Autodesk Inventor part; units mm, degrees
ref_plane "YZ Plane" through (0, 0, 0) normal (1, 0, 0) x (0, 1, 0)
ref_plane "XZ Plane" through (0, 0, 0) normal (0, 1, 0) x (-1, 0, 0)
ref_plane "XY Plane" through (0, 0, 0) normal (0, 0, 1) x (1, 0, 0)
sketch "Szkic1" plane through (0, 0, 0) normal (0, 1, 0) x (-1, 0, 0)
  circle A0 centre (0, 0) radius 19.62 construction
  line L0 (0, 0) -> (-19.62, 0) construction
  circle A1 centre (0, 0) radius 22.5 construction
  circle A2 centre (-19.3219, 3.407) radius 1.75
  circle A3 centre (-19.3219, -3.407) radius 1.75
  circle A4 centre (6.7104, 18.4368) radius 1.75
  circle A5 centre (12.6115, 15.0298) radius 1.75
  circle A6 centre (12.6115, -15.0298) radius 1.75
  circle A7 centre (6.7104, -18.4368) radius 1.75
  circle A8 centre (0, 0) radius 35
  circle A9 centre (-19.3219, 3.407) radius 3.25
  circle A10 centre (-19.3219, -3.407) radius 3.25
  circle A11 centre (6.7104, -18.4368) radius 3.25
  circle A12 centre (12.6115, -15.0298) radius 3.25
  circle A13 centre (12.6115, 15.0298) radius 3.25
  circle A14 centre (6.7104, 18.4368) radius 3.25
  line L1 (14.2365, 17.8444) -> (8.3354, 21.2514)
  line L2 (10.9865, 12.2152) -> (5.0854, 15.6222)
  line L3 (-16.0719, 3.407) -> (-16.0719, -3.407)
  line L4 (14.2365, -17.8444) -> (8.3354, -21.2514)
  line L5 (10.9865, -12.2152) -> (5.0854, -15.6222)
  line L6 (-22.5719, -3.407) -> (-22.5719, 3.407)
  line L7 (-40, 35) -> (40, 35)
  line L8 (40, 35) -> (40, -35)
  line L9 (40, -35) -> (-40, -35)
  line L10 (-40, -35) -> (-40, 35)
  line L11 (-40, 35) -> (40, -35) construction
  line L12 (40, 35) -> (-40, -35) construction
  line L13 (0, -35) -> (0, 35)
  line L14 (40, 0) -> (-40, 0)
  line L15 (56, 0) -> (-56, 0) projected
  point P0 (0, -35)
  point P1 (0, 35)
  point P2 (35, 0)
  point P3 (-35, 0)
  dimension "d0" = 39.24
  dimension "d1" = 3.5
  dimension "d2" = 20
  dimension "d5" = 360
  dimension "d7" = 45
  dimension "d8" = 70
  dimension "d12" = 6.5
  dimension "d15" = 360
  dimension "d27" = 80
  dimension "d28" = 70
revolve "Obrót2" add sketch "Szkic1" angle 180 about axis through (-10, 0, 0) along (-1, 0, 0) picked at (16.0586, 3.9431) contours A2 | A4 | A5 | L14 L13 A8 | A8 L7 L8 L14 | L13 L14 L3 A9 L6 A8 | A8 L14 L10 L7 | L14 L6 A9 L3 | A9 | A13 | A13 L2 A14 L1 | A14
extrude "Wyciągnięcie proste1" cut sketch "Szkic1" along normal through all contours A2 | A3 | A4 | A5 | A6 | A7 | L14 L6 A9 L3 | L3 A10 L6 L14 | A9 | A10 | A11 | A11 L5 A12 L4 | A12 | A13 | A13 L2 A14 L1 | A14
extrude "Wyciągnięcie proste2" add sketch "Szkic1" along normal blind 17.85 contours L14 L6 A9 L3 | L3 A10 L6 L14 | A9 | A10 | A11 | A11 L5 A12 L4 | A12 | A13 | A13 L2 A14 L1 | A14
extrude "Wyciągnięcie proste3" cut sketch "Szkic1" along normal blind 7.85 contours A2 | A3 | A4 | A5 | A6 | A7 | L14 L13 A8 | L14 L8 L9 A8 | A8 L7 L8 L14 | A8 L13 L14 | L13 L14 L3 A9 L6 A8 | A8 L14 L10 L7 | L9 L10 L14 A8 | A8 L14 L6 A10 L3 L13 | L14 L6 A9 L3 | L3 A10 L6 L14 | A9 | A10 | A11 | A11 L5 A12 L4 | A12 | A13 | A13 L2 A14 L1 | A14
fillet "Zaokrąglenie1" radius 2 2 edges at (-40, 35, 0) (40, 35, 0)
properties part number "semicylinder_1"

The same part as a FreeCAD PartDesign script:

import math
import FreeCAD as App
import Part
import Sketcher

V = App.Vector
Q = App.Units.Quantity


def edges_at(feature, points):
    """Names of the edges that pass closest to the given points."""
    edges = feature.Shape.Edges
    near = lambda p: min(range(len(edges)), key=lambda i: edges[i].distToShape(Part.Vertex(*p))[0])
    return sorted({f"Edge{near(p) + 1}" for p in points})


def add_polygon(sketch, points):
    """Adds a closed chain of lines whose ends are joined by coincident constraints."""
    first, n = sketch.GeometryCount, len(points)
    for a, b in zip(points, points[1:] + points[:1]):
        sketch.addGeometry(Part.LineSegment(App.Vector(*a, 0), App.Vector(*b, 0)), False)
    for i in range(n):
        sketch.addConstraint(Sketcher.Constraint("Coincident", first + i, 2, first + (i + 1) % n, 1))

doc = App.newDocument("Part")
body = doc.addObject("PartDesign::Body", "Body")

# Sketch on XZ plane
sketch1 = doc.addObject("Sketcher::SketchObject", "Sketch")
body.addObject(sketch1)
sketch1.AttachmentSupport = (doc.XZ_Plane, [""])
sketch1.MapMode = "FlatFace"
add_polygon(sketch1, [(-40, 0), (-40, 35), (40, 35), (40, 0)])  # lines 0-3
sketch1.addConstraint(Sketcher.Constraint("Vertical", 0))
sketch1.addConstraint(Sketcher.Constraint("Horizontal", 1))
sketch1.addConstraint(Sketcher.Constraint("Vertical", 2))
sketch1.addConstraint(Sketcher.Constraint("Horizontal", 3))
sketch1.addConstraint(Sketcher.Constraint("Symmetric", 2, 2, 3, 2, -1, 1))
sketch1.addConstraint(Sketcher.Constraint("DistanceX", 1, 1, 1, 2, 80.0))
sketch1.addConstraint(Sketcher.Constraint("DistanceY", 0, 1, 0, 2, 35.0))
revolution = doc.addObject("PartDesign::Revolution", "Revolution")
body.addObject(revolution)
revolution.Profile = sketch1
revolution.ReferenceAxis = (sketch1, ["H_Axis"])
revolution.Angle = 180
revolution.Reversed = True

# Sketch on XZ plane
sketch2 = doc.addObject("Sketcher::SketchObject", "Sketch001")
body.addObject(sketch2)
sketch2.AttachmentSupport = (doc.XZ_Plane, [""])
sketch2.MapMode = "FlatFace"
sketch2.addGeometry(Part.ArcOfCircle(Part.Circle(V(19.3, 3.4, 0), V(0, 0, 1), 3.2), math.radians(0), math.radians(180)), False)
sketch2.addGeometry(Part.LineSegment(V(22.6, 3.4, 0), V(22.6, -3.4, 0)), False)
sketch2.addGeometry(Part.ArcOfCircle(Part.Circle(V(19.3, -3.4, 0), V(0, 0, 1), 3.2), math.radians(180), math.radians(360)), False)
sketch2.addGeometry(Part.LineSegment(V(16.1, -3.4, 0), V(16.1, 3.4, 0)), False)
sketch2.addGeometry(Part.ArcOfCircle(Part.Circle(V(-6.7, 18.4, 0), V(0, 0, 1), 3.2), math.radians(-60), math.radians(120)), False)
sketch2.addGeometry(Part.LineSegment(V(-5.1, 15.6, 0), V(-11, 12.2, 0)), False)
sketch2.addGeometry(Part.ArcOfCircle(Part.Circle(V(-12.6, 15, 0), V(0, 0, 1), 3.2), math.radians(120), math.radians(300)), False)
sketch2.addGeometry(Part.LineSegment(V(-14.2, 17.8, 0), V(-8.3, 21.3, 0)), False)
sketch2.addGeometry(Part.LineSegment(V(-11, -12.2, 0), V(-5.1, -15.6, 0)), False)
sketch2.addGeometry(Part.ArcOfCircle(Part.Circle(V(-6.7, -18.4, 0), V(0, 0, 1), 3.2), math.radians(-120), math.radians(60)), False)
sketch2.addGeometry(Part.LineSegment(V(-8.3, -21.3, 0), V(-14.2, -17.8, 0)), False)
sketch2.addGeometry(Part.ArcOfCircle(Part.Circle(V(-12.6, -15, 0), V(0, 0, 1), 3.2), math.radians(60), math.radians(240)), False)
sketch2.addConstraint(Sketcher.Constraint("Tangent", 0, 1, 1, 1))
sketch2.addConstraint(Sketcher.Constraint("Tangent", 1, 2, 2, 2))
sketch2.addConstraint(Sketcher.Constraint("Tangent", 2, 1, 3, 1))
sketch2.addConstraint(Sketcher.Constraint("Tangent", 3, 2, 0, 2))
sketch2.addConstraint(Sketcher.Constraint("Tangent", 4, 1, 5, 1))
sketch2.addConstraint(Sketcher.Constraint("Tangent", 5, 2, 6, 2))
sketch2.addConstraint(Sketcher.Constraint("Tangent", 6, 1, 7, 1))
sketch2.addConstraint(Sketcher.Constraint("Tangent", 7, 2, 4, 2))
sketch2.addConstraint(Sketcher.Constraint("Tangent", 8, 2, 9, 2))
sketch2.addConstraint(Sketcher.Constraint("Tangent", 9, 1, 10, 1))
sketch2.addConstraint(Sketcher.Constraint("Tangent", 10, 2, 11, 2))
sketch2.addConstraint(Sketcher.Constraint("Tangent", 11, 1, 8, 1))
sketch2.addConstraint(Sketcher.Constraint("Vertical", 1))
sketch2.addConstraint(Sketcher.Constraint("Vertical", 3))
sketch2.addConstraint(Sketcher.Constraint("Equal", 2, 4))
sketch2.addConstraint(Sketcher.Constraint("Equal", 4, 6))
sketch2.addConstraint(Sketcher.Constraint("Equal", 6, 9))
sketch2.addConstraint(Sketcher.Constraint("Equal", 9, 11))
sketch2.addConstraint(Sketcher.Constraint("Symmetric", 4, 3, 9, 3, -1))
sketch2.addConstraint(Sketcher.Constraint("Symmetric", 6, 3, 11, 3, -1))
sketch2.addConstraint(Sketcher.Constraint("Radius", 0, 3.25))
sketch2.addConstraint(Sketcher.Constraint("Angle", 5, Q("-150 deg")))
sketch2.addConstraint(Sketcher.Constraint("DistanceY", 1, 2, 1, 1, 6.814))
sketch2.addConstraint(Sketcher.Constraint("Distance", 5, 6.814))
sketch2.addConstraint(Sketcher.Constraint("DistanceX", -1, 1, 0, 3, 19.322))
sketch2.addConstraint(Sketcher.Constraint("DistanceY", -1, 1, 0, 3, 3.407))
sketch2.addConstraint(Sketcher.Constraint("DistanceY", 11, 3, 5, 2, 27.245))
sketch2.addConstraint(Sketcher.Constraint("DistanceX", 4, 3, -1, 1, 6.7104))
pocket1 = doc.addObject("PartDesign::Pocket", "Pocket")
body.addObject(pocket1)
pocket1.Profile = sketch2
pocket1.Type = "ThroughAll"

# Sketch on XZ plane
sketch3 = doc.addObject("Sketcher::SketchObject", "Sketch002")
body.addObject(sketch3)
sketch3.AttachmentSupport = (doc.XZ_Plane, [""])
sketch3.MapMode = "FlatFace"
sketch3.addGeometry(Part.LineSegment(V(22.6, 3.4, 0), V(22.6, -3.4, 0)), False)
sketch3.addGeometry(Part.ArcOfCircle(Part.Circle(V(19.3, -3.4, 0), V(0, 0, 1), 3.2), math.radians(180), math.radians(360)), False)
sketch3.addGeometry(Part.LineSegment(V(16.1, -3.4, 0), V(16.1, 3.4, 0)), False)
sketch3.addGeometry(Part.ArcOfCircle(Part.Circle(V(19.3, 3.4, 0), V(0, 0, 1), 3.2), math.radians(0), math.radians(180)), False)
sketch3.addGeometry(Part.Circle(V(19.3, 3.4, 0), V(0, 0, 1), 1.8), False)
sketch3.addGeometry(Part.Circle(V(19.3, -3.4, 0), V(0, 0, 1), 1.8), False)
sketch3.addGeometry(Part.ArcOfCircle(Part.Circle(V(-6.7, -18.4, 0), V(0, 0, 1), 3.2), math.radians(-120), math.radians(60)), False)
sketch3.addGeometry(Part.LineSegment(V(-8.3, -21.3, 0), V(-14.2, -17.8, 0)), False)
sketch3.addGeometry(Part.ArcOfCircle(Part.Circle(V(-12.6, -15, 0), V(0, 0, 1), 3.2), math.radians(60), math.radians(240)), False)
sketch3.addGeometry(Part.LineSegment(V(-11, -12.2, 0), V(-5.1, -15.6, 0)), False)
sketch3.addGeometry(Part.Circle(V(-6.7, -18.4, 0), V(0, 0, 1), 1.8), False)
sketch3.addGeometry(Part.Circle(V(-12.6, -15, 0), V(0, 0, 1), 1.8), False)
sketch3.addGeometry(Part.ArcOfCircle(Part.Circle(V(-12.6, 15, 0), V(0, 0, 1), 3.2), math.radians(120), math.radians(300)), False)
sketch3.addGeometry(Part.LineSegment(V(-14.2, 17.8, 0), V(-8.3, 21.3, 0)), False)
sketch3.addGeometry(Part.ArcOfCircle(Part.Circle(V(-6.7, 18.4, 0), V(0, 0, 1), 3.2), math.radians(-60), math.radians(120)), False)
sketch3.addGeometry(Part.LineSegment(V(-5.1, 15.6, 0), V(-11, 12.2, 0)), False)
sketch3.addGeometry(Part.Circle(V(-12.6, 15, 0), V(0, 0, 1), 1.8), False)
sketch3.addGeometry(Part.Circle(V(-6.7, 18.4, 0), V(0, 0, 1), 1.8), False)
sketch3.addConstraint(Sketcher.Constraint("Tangent", 0, 2, 1, 2))
sketch3.addConstraint(Sketcher.Constraint("Tangent", 1, 1, 2, 1))
sketch3.addConstraint(Sketcher.Constraint("Tangent", 2, 2, 3, 2))
sketch3.addConstraint(Sketcher.Constraint("Tangent", 3, 1, 0, 1))
sketch3.addConstraint(Sketcher.Constraint("Tangent", 6, 1, 7, 1))
sketch3.addConstraint(Sketcher.Constraint("Tangent", 7, 2, 8, 2))
sketch3.addConstraint(Sketcher.Constraint("Tangent", 8, 1, 9, 1))
sketch3.addConstraint(Sketcher.Constraint("Tangent", 9, 2, 6, 2))
sketch3.addConstraint(Sketcher.Constraint("Tangent", 12, 1, 13, 1))
sketch3.addConstraint(Sketcher.Constraint("Tangent", 13, 2, 14, 2))
sketch3.addConstraint(Sketcher.Constraint("Tangent", 14, 1, 15, 1))
sketch3.addConstraint(Sketcher.Constraint("Tangent", 15, 2, 12, 2))
sketch3.addConstraint(Sketcher.Constraint("Vertical", 0))
sketch3.addConstraint(Sketcher.Constraint("Vertical", 2))
sketch3.addConstraint(Sketcher.Constraint("Coincident", 4, 3, 3, 3))
sketch3.addConstraint(Sketcher.Constraint("Coincident", 5, 3, 1, 3))
sketch3.addConstraint(Sketcher.Constraint("Coincident", 10, 3, 6, 3))
sketch3.addConstraint(Sketcher.Constraint("Coincident", 11, 3, 8, 3))
sketch3.addConstraint(Sketcher.Constraint("Coincident", 16, 3, 12, 3))
sketch3.addConstraint(Sketcher.Constraint("Coincident", 17, 3, 14, 3))
sketch3.addConstraint(Sketcher.Constraint("Equal", 4, 5))
sketch3.addConstraint(Sketcher.Constraint("Equal", 3, 6))
sketch3.addConstraint(Sketcher.Constraint("Equal", 6, 8))
sketch3.addConstraint(Sketcher.Constraint("Equal", 5, 10))
sketch3.addConstraint(Sketcher.Constraint("Equal", 10, 11))
sketch3.addConstraint(Sketcher.Constraint("Equal", 8, 12))
sketch3.addConstraint(Sketcher.Constraint("Equal", 12, 14))
sketch3.addConstraint(Sketcher.Constraint("Equal", 11, 16))
sketch3.addConstraint(Sketcher.Constraint("Equal", 16, 17))
sketch3.addConstraint(Sketcher.Constraint("Symmetric", 8, 3, 12, 3, -1))
sketch3.addConstraint(Sketcher.Constraint("Symmetric", 6, 3, 14, 3, -1))
sketch3.addConstraint(Sketcher.Constraint("Diameter", 4, 3.5))
sketch3.addConstraint(Sketcher.Constraint("Radius", 1, 3.25))
sketch3.addConstraint(Sketcher.Constraint("Angle", 7, Q("150 deg")))
sketch3.addConstraint(Sketcher.Constraint("DistanceY", 0, 2, 0, 1, 6.814))
sketch3.addConstraint(Sketcher.Constraint("Distance", 7, 6.814))
sketch3.addConstraint(Sketcher.Constraint("DistanceX", -1, 1, 1, 3, 19.322))
sketch3.addConstraint(Sketcher.Constraint("DistanceY", 1, 3, -1, 1, 3.407))
sketch3.addConstraint(Sketcher.Constraint("DistanceX", 6, 3, -1, 1, 6.7104))
sketch3.addConstraint(Sketcher.Constraint("DistanceY", 6, 3, -1, 1, 18.4368))
pad1 = doc.addObject("PartDesign::Pad", "Pad")
body.addObject(pad1)
pad1.Profile = sketch3
pad1.Length = 17.85
pad1.Reversed = True

# Sketch on XZ plane
sketch4 = doc.addObject("Sketcher::SketchObject", "Sketch003")
body.addObject(sketch4)
sketch4.AttachmentSupport = (doc.XZ_Plane, [""])
sketch4.MapMode = "FlatFace"
add_polygon(sketch4, [(40, 35), (40, -35), (-40, -35), (-40, 35)])  # lines 0-3
sketch4.addConstraint(Sketcher.Constraint("Vertical", 0))
sketch4.addConstraint(Sketcher.Constraint("Horizontal", 1))
sketch4.addConstraint(Sketcher.Constraint("Vertical", 2))
sketch4.addConstraint(Sketcher.Constraint("Horizontal", 3))
sketch4.addConstraint(Sketcher.Constraint("Symmetric", 0, 2, 2, 2, -1, 1))
sketch4.addConstraint(Sketcher.Constraint("DistanceX", 1, 2, 1, 1, 80.0))
sketch4.addConstraint(Sketcher.Constraint("DistanceY", 0, 2, 0, 1, 70.0))
pocket2 = doc.addObject("PartDesign::Pocket", "Pocket001")
body.addObject(pocket2)
pocket2.Profile = sketch4
pocket2.Length = 7.85
doc.recompute()

fillet = doc.addObject("PartDesign::Fillet", "Fillet")
body.addObject(fillet)
fillet.Base = (pocket2, edges_at(pocket2, [(-40, 35, 0), (40, 35, 0)]))
fillet.Radius = 2

doc.recompute()
